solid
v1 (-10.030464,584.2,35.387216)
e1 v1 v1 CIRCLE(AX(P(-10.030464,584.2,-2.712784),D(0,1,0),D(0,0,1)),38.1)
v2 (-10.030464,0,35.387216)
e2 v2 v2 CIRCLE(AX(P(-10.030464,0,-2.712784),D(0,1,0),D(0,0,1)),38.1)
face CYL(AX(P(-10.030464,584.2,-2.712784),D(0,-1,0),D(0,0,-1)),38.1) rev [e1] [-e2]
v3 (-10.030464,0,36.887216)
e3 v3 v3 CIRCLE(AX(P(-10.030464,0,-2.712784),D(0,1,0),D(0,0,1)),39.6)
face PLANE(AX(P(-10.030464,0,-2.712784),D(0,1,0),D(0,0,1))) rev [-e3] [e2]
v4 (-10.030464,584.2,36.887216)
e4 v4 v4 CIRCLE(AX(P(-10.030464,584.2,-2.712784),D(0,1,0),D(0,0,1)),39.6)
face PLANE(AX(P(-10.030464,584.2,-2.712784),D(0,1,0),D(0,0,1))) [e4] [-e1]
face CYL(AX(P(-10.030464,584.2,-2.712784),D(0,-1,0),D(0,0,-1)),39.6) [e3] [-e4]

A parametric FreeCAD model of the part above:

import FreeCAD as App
import Part
import Sketcher
Q = App.Units.Quantity

doc = App.newDocument("Part")
body = doc.addObject("PartDesign::Body", "Body")

# Sketch on XZ plane
sketch1 = body.newObject("Sketcher::SketchObject", "Sketch")
sketch1.AttachmentSupport = (doc.getObject("XZ_Plane"), [""])
sketch1.MapMode = "FlatFace"
sketch1.addGeometry([
    Part.Circle(App.Vector(-10, -3, 0), App.Vector(0, 0, 1), 40),
    Part.Circle(App.Vector(-10, -3, 0), App.Vector(0, 0, 1), 38),
], False)
sketch1.addConstraint([
    Sketcher.Constraint("Coincident", 1, 3, 0, 3),
    Sketcher.Constraint("Diameter", 1, Q("3 in")),
    Sketcher.Constraint("Diameter", 0, Q("79.2 mm")),
    Sketcher.Constraint("DistanceX", 0, 3, -1, 1, Q("0.3949001 in")),
    Sketcher.Constraint("DistanceY", 0, 3, -1, 1, Q("2.712784 mm")),
])
pad1 = body.newObject("PartDesign::Pad", "Pad")
pad1.Profile = sketch1
pad1.Length = Q("23 in")
pad1.Reversed = True

doc.recompute()
